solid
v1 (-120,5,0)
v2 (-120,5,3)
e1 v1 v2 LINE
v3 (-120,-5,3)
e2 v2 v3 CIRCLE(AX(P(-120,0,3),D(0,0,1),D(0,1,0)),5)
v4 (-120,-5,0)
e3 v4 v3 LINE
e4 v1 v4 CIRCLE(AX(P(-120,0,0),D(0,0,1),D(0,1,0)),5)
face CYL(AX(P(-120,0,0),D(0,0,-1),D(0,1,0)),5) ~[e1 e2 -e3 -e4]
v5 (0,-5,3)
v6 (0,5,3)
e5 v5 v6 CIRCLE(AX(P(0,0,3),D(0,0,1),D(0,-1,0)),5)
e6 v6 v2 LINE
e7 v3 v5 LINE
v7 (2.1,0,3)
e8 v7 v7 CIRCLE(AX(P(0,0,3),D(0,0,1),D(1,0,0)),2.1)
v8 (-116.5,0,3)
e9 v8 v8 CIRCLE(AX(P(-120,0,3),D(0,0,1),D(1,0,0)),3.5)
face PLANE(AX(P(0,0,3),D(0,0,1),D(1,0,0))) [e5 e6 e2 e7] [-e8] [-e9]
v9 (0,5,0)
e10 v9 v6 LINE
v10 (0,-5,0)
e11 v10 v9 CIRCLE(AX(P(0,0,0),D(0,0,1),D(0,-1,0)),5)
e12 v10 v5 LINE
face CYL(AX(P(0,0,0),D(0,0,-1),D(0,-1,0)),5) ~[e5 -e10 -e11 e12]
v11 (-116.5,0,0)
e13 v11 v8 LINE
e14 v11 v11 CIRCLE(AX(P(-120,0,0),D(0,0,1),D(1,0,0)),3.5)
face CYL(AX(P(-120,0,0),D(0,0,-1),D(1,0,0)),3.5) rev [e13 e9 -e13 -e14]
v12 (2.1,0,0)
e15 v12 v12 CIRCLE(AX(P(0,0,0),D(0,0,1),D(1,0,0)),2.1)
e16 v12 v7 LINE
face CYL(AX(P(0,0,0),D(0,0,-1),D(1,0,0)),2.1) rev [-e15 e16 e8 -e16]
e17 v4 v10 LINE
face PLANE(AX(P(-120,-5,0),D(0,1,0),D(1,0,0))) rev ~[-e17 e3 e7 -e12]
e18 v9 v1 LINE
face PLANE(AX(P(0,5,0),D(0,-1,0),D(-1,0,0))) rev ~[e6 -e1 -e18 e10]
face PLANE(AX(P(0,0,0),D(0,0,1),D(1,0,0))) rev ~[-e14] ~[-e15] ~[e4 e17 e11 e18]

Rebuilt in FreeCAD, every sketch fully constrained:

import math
import FreeCAD as App
import Part
import Sketcher

V = App.Vector

doc = App.newDocument("Part")
body = doc.addObject("PartDesign::Body", "Body")

# Sketch on XY plane
sketch1 = doc.addObject("Sketcher::SketchObject", "Sketch")
body.addObject(sketch1)
sketch1.AttachmentSupport = (doc.XY_Plane, [""])
sketch1.MapMode = "FlatFace"
sketch1.addGeometry([
    Part.ArcOfCircle(Part.Circle(V(-120, 0, 0), V(0, 0, 1), 5), math.radians(90), math.radians(270)),  # 0
    Part.LineSegment(V(-120, -5, 0), V(0, -5, 0)),  # 1
    Part.ArcOfCircle(Part.Circle(V(0, 0, 0), V(0, 0, 1), 5), math.radians(-90), math.radians(90)),  # 2
    Part.LineSegment(V(0, 5, 0), V(-120, 5, 0)),  # 3
    Part.Circle(V(-120, 0, 0), V(0, 0, 1), 3.5),  # 4
    Part.Circle(V(0, 0, 0), V(0, 0, 1), 2.1),  # 5
], False)
sketch1.addConstraint([
    Sketcher.Constraint("Tangent", 0, 2, 1, 1),
    Sketcher.Constraint("Tangent", 1, 2, 2, 1),
    Sketcher.Constraint("Tangent", 2, 2, 3, 1),
    Sketcher.Constraint("Tangent", 3, 2, 0, 1),
    Sketcher.Constraint("Horizontal", 1),
    Sketcher.Constraint("Horizontal", 3),
    Sketcher.Constraint("Coincident", 2, 3, -1, 1),
    Sketcher.Constraint("Coincident", 5, 3, -1, 1),
    Sketcher.Constraint("Coincident", 4, 3, 0, 3),
    Sketcher.Constraint("Diameter", 4, 7.0),
    Sketcher.Constraint("Radius", 0, 5.0),
    Sketcher.Constraint("Diameter", 5, 4.2),
    Sketcher.Constraint("DistanceX", 1, 1, 1, 2, 120.0),
])
pad1 = doc.addObject("PartDesign::Pad", "Pad")
body.addObject(pad1)
pad1.Profile = sketch1
pad1.Length = 3

doc.recompute()
